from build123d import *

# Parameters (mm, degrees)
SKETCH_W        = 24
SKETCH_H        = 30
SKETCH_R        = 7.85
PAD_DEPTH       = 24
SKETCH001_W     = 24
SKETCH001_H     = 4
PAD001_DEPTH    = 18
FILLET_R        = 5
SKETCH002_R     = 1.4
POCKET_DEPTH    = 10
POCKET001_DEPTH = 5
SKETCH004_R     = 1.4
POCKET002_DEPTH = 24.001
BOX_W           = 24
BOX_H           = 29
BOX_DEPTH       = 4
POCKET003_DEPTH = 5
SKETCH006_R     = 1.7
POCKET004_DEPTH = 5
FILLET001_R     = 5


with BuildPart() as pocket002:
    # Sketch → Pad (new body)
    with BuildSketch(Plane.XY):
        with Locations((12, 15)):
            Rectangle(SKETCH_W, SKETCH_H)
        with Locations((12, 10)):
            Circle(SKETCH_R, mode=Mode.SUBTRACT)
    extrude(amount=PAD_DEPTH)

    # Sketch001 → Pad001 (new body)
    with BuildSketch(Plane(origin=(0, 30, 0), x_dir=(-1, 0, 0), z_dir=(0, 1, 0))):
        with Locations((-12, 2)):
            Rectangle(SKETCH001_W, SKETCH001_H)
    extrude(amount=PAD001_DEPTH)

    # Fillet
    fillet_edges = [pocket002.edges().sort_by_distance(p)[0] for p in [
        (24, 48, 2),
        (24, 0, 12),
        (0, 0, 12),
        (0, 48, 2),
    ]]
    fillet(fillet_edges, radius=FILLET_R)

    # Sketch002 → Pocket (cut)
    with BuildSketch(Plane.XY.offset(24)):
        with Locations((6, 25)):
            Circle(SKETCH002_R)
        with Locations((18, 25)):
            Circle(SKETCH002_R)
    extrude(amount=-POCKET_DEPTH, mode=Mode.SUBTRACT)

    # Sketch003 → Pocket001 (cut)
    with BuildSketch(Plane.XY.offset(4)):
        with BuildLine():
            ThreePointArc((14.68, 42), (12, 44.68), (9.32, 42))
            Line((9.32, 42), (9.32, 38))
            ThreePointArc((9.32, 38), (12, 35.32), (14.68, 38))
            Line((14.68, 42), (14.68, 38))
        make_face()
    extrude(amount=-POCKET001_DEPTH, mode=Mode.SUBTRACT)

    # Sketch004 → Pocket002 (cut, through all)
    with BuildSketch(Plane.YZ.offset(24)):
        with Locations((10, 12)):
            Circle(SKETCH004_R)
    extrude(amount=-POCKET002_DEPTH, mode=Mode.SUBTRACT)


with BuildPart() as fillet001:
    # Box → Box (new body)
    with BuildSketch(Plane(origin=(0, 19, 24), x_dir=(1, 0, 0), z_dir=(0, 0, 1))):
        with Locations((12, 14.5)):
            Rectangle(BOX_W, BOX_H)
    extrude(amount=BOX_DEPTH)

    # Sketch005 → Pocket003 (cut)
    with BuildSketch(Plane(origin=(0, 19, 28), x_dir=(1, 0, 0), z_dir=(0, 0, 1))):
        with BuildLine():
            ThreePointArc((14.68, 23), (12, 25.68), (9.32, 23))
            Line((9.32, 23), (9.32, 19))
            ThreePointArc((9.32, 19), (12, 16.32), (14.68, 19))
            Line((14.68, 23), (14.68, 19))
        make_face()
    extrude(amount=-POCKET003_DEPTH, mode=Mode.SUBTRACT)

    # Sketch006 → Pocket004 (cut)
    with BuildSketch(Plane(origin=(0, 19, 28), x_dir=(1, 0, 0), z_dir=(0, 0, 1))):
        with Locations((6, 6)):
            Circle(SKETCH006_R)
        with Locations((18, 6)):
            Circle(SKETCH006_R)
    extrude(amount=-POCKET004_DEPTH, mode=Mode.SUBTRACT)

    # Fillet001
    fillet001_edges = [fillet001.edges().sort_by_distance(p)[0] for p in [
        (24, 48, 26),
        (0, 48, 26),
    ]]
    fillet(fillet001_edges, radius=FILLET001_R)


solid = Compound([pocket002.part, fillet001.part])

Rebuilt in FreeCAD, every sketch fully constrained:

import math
import FreeCAD as App
import Part
import Sketcher
from FreeCAD import Vector
Q = App.Units.Quantity


def edges_at(feature, points):
    """Names of the edges that pass closest to the given points."""
    edges = feature.Shape.Edges
    near = lambda p: min(range(len(edges)), key=lambda i: edges[i].distToShape(Part.Vertex(*p))[0])
    return sorted({f"Edge{near(p) + 1}" for p in points})

doc = App.newDocument("Part")
body = doc.addObject("PartDesign::Body", "Body")

sketch1 = body.newObject("Sketcher::SketchObject", "Sketch")
sketch1.AttachmentSupport = (doc.getObject("XY_Plane"), [""])
sketch1.MapMode = "FlatFace"
sketch1.addGeometry(Part.LineSegment(Vector(0, 30, 0), Vector(0, 0, 0)), False)
sketch1.addGeometry(Part.LineSegment(Vector(0, 0, 0), Vector(24, 0, 0)), False)
sketch1.addGeometry(Part.LineSegment(Vector(24, 0, 0), Vector(24, 30, 0)), False)
sketch1.addGeometry(Part.LineSegment(Vector(24, 30, 0), Vector(0, 30, 0)), False)
sketch1.addGeometry(Part.Circle(Vector(12, 10, 0), Vector(0, 0, 1), 7.85), False)
sketch1.addConstraint(Sketcher.Constraint("Coincident", 0, 2, 1, 1))
sketch1.addConstraint(Sketcher.Constraint("Coincident", 1, 2, 2, 1))
sketch1.addConstraint(Sketcher.Constraint("Coincident", 2, 2, 3, 1))
sketch1.addConstraint(Sketcher.Constraint("Coincident", 3, 2, 0, 1))
sketch1.addConstraint(Sketcher.Constraint("Vertical", 0))
sketch1.addConstraint(Sketcher.Constraint("Horizontal", 1))
sketch1.addConstraint(Sketcher.Constraint("Vertical", 2))
sketch1.addConstraint(Sketcher.Constraint("Horizontal", 3))
sketch1.addConstraint(Sketcher.Constraint("Coincident", 0, 2, -1, 1))
sketch1.addConstraint(Sketcher.Constraint("Diameter", 4, Q("15.7 mm")))
sketch1.addConstraint(Sketcher.Constraint("DistanceX", 1, 1, 1, 2, Q("24 mm")))
sketch1.addConstraint(Sketcher.Constraint("DistanceY", 0, 2, 0, 1, Q("30 mm")))
sketch1.addConstraint(Sketcher.Constraint("DistanceX", -1, 1, 4, 3, Q("12 mm")))
sketch1.addConstraint(Sketcher.Constraint("DistanceY", -1, 1, 4, 3, Q("10 mm")))
pad1 = body.newObject("PartDesign::Pad", "Pad")
pad1.Profile = sketch1
pad1.Length = 24

sketch2 = body.newObject("Sketcher::SketchObject", "Sketch001")
sketch2.AttachmentSupport = (doc.getObject("XZ_Plane"), [""])
sketch2.MapMode = "FlatFace"
sketch2.AttachmentOffset = App.Placement(Vector(0, 0, -30), App.Rotation())
sketch2.addGeometry(Part.LineSegment(Vector(24, 4, 0), Vector(24, 0, 0)), False)
sketch2.addGeometry(Part.LineSegment(Vector(24, 0, 0), Vector(0, 0, 0)), False)
sketch2.addGeometry(Part.LineSegment(Vector(0, 0, 0), Vector(0, 4, 0)), False)
sketch2.addGeometry(Part.LineSegment(Vector(0, 4, 0), Vector(24, 4, 0)), False)
sketch2.addConstraint(Sketcher.Constraint("Coincident", 0, 2, 1, 1))
sketch2.addConstraint(Sketcher.Constraint("Coincident", 1, 2, 2, 1))
sketch2.addConstraint(Sketcher.Constraint("Coincident", 2, 2, 3, 1))
sketch2.addConstraint(Sketcher.Constraint("Coincident", 3, 2, 0, 1))
sketch2.addConstraint(Sketcher.Constraint("Vertical", 0))
sketch2.addConstraint(Sketcher.Constraint("Horizontal", 1))
sketch2.addConstraint(Sketcher.Constraint("Vertical", 2))
sketch2.addConstraint(Sketcher.Constraint("Horizontal", 3))
sketch2.addConstraint(Sketcher.Constraint("Coincident", 1, 2, -1, 1))
sketch2.addConstraint(Sketcher.Constraint("DistanceX", 1, 2, 1, 1, Q("24 mm")))
sketch2.addConstraint(Sketcher.Constraint("DistanceY", 0, 2, 0, 1, Q("4 mm")))
pad2 = body.newObject("PartDesign::Pad", "Pad001")
pad2.Profile = sketch2
pad2.Length = 18
pad2.Reversed = True
doc.recompute()

fillet = body.newObject("PartDesign::Fillet", "Fillet")
fillet.Base = (pad2, edges_at(pad2, [
    (24, 48, 2),
    (24, 0, 12),
    (0, 0, 12),
    (0, 48, 2),
]))
fillet.Radius = 5

sketch3 = body.newObject("Sketcher::SketchObject", "Sketch002")
sketch3.AttachmentSupport = (doc.getObject("XY_Plane"), [""])
sketch3.MapMode = "FlatFace"
sketch3.AttachmentOffset = App.Placement(Vector(0, 0, 24), App.Rotation())
sketch3.addGeometry(Part.Circle(Vector(6, 25, 0), Vector(0, 0, 1), 1.4), False)
sketch3.addGeometry(Part.Circle(Vector(18, 25, 0), Vector(0, 0, 1), 1.4), False)
sketch3.addConstraint(Sketcher.Constraint("Equal", 0, 1))
sketch3.addConstraint(Sketcher.Constraint("Horizontal", 0, 3, 1, 3))
sketch3.addConstraint(Sketcher.Constraint("Diameter", 0, Q("2.8 mm")))
sketch3.addConstraint(Sketcher.Constraint("DistanceX", -1, 1, 0, 3, Q("6 mm")))
sketch3.addConstraint(Sketcher.Constraint("DistanceY", -1, 1, 0, 3, Q("25 mm")))
sketch3.addConstraint(Sketcher.Constraint("DistanceX", -1, 1, 1, 3, Q("18 mm")))
pocket1 = body.newObject("PartDesign::Pocket", "Pocket")
pocket1.Profile = sketch3
pocket1.Length = 10

sketch4 = body.newObject("Sketcher::SketchObject", "Sketch003")
sketch4.AttachmentSupport = (doc.getObject("XY_Plane"), [""])
sketch4.MapMode = "FlatFace"
sketch4.AttachmentOffset = App.Placement(Vector(0, 0, 4), App.Rotation())
sketch4.addGeometry(Part.ArcOfCircle(Part.Circle(Vector(12, 42, 0), Vector(0, 0, 1), 2.68), math.radians(0), math.radians(180)), False)
sketch4.addGeometry(Part.LineSegment(Vector(9.32, 42, 0), Vector(9.32, 38, 0)), False)
sketch4.addGeometry(Part.ArcOfCircle(Part.Circle(Vector(12, 38, 0), Vector(0, 0, 1), 2.68), math.radians(180), math.radians(360)), False)
sketch4.addGeometry(Part.LineSegment(Vector(14.68, 38, 0), Vector(14.68, 42, 0)), False)
sketch4.addConstraint(Sketcher.Constraint("Tangent", 0, 2, 1, 1))
sketch4.addConstraint(Sketcher.Constraint("Tangent", 1, 2, 2, 1))
sketch4.addConstraint(Sketcher.Constraint("Tangent", 2, 2, 3, 1))
sketch4.addConstraint(Sketcher.Constraint("Tangent", 3, 2, 0, 1))
sketch4.addConstraint(Sketcher.Constraint("Vertical", 1))
sketch4.addConstraint(Sketcher.Constraint("Vertical", 3))
sketch4.addConstraint(Sketcher.Constraint("DistanceY", 1, 2, 1, 1, Q("4 mm")))
sketch4.addConstraint(Sketcher.Constraint("Radius", 0, Q("2.68 mm")))
sketch4.addConstraint(Sketcher.Constraint("DistanceX", -1, 1, 0, 3, Q("12 mm")))
sketch4.addConstraint(Sketcher.Constraint("DistanceY", -1, 1, 0, 3, Q("42 mm")))
pocket2 = body.newObject("PartDesign::Pocket", "Pocket001")
pocket2.Profile = sketch4
pocket2.Length = 5

sketch5 = body.newObject("Sketcher::SketchObject", "Sketch004")
sketch5.AttachmentSupport = (doc.getObject("YZ_Plane"), [""])
sketch5.MapMode = "FlatFace"
sketch5.AttachmentOffset = App.Placement(Vector(0, 0, 24), App.Rotation())
sketch5.addGeometry(Part.Circle(Vector(10, 12, 0), Vector(0, 0, 1), 1.4), False)
sketch5.addConstraint(Sketcher.Constraint("Diameter", 0, Q("2.8 mm")))
sketch5.addConstraint(Sketcher.Constraint("DistanceX", -1, 1, 0, 3, Q("10 mm")))
sketch5.addConstraint(Sketcher.Constraint("DistanceY", -1, 1, 0, 3, Q("12 mm")))
pocket3 = body.newObject("PartDesign::Pocket", "Pocket002")
pocket3.Profile = sketch5
pocket3.Type = "ThroughAll"
body2 = doc.addObject("PartDesign::Body", "Body001")

sketch6 = body2.newObject("Sketcher::SketchObject", "Sketch005")
sketch6.AttachmentSupport = (doc.getObject("XY_Plane001"), [""])
sketch6.MapMode = "FlatFace"
sketch6.AttachmentOffset = App.Placement(Vector(0, 0, 24), App.Rotation())
sketch6.addGeometry(Part.LineSegment(Vector(0, 48, 0), Vector(0, 19, 0)), False)
sketch6.addGeometry(Part.LineSegment(Vector(0, 19, 0), Vector(24, 19, 0)), False)
sketch6.addGeometry(Part.LineSegment(Vector(24, 19, 0), Vector(24, 48, 0)), False)
sketch6.addGeometry(Part.LineSegment(Vector(24, 48, 0), Vector(0, 48, 0)), False)
sketch6.addConstraint(Sketcher.Constraint("Coincident", 0, 2, 1, 1))
sketch6.addConstraint(Sketcher.Constraint("Coincident", 1, 2, 2, 1))
sketch6.addConstraint(Sketcher.Constraint("Coincident", 2, 2, 3, 1))
sketch6.addConstraint(Sketcher.Constraint("Coincident", 3, 2, 0, 1))
sketch6.addConstraint(Sketcher.Constraint("Vertical", 0))
sketch6.addConstraint(Sketcher.Constraint("Horizontal", 1))
sketch6.addConstraint(Sketcher.Constraint("Vertical", 2))
sketch6.addConstraint(Sketcher.Constraint("Horizontal", 3))
sketch6.addConstraint(Sketcher.Constraint("PointOnObject", 0, 2, -2))
sketch6.addConstraint(Sketcher.Constraint("DistanceX", 1, 1, 1, 2, Q("24 mm")))
sketch6.addConstraint(Sketcher.Constraint("DistanceY", 0, 2, 0, 1, Q("29 mm")))
sketch6.addConstraint(Sketcher.Constraint("DistanceY", -1, 1, 0, 2, Q("19 mm")))
pad3 = body2.newObject("PartDesign::Pad", "Pad002")
pad3.Profile = sketch6
pad3.Length = 4

sketch7 = body2.newObject("Sketcher::SketchObject", "Sketch006")
sketch7.AttachmentSupport = (doc.getObject("XY_Plane001"), [""])
sketch7.MapMode = "FlatFace"
sketch7.AttachmentOffset = App.Placement(Vector(0, 0, 28), App.Rotation())
sketch7.addGeometry(Part.ArcOfCircle(Part.Circle(Vector(12, 42, 0), Vector(0, 0, 1), 2.68), math.radians(0), math.radians(180)), False)
sketch7.addGeometry(Part.LineSegment(Vector(9.32, 42, 0), Vector(9.32, 38, 0)), False)
sketch7.addGeometry(Part.ArcOfCircle(Part.Circle(Vector(12, 38, 0), Vector(0, 0, 1), 2.68), math.radians(180), math.radians(360)), False)
sketch7.addGeometry(Part.LineSegment(Vector(14.68, 38, 0), Vector(14.68, 42, 0)), False)
sketch7.addConstraint(Sketcher.Constraint("Tangent", 0, 2, 1, 1))
sketch7.addConstraint(Sketcher.Constraint("Tangent", 1, 2, 2, 1))
sketch7.addConstraint(Sketcher.Constraint("Tangent", 2, 2, 3, 1))
sketch7.addConstraint(Sketcher.Constraint("Tangent", 3, 2, 0, 1))
sketch7.addConstraint(Sketcher.Constraint("Vertical", 1))
sketch7.addConstraint(Sketcher.Constraint("Vertical", 3))
sketch7.addConstraint(Sketcher.Constraint("DistanceY", 1, 2, 1, 1, Q("4 mm")))
sketch7.addConstraint(Sketcher.Constraint("Radius", 0, Q("2.68 mm")))
sketch7.addConstraint(Sketcher.Constraint("DistanceX", -1, 1, 0, 3, Q("12 mm")))
sketch7.addConstraint(Sketcher.Constraint("DistanceY", -1, 1, 0, 3, Q("42 mm")))
pocket4 = body2.newObject("PartDesign::Pocket", "Pocket003")
pocket4.Profile = sketch7
pocket4.Length = 5

sketch8 = body2.newObject("Sketcher::SketchObject", "Sketch007")
sketch8.AttachmentSupport = (doc.getObject("XY_Plane001"), [""])
sketch8.MapMode = "FlatFace"
sketch8.AttachmentOffset = App.Placement(Vector(0, 0, 28), App.Rotation())
sketch8.addGeometry(Part.Circle(Vector(6, 25, 0), Vector(0, 0, 1), 1.7), False)
sketch8.addGeometry(Part.Circle(Vector(18, 25, 0), Vector(0, 0, 1), 1.7), False)
sketch8.addConstraint(Sketcher.Constraint("Equal", 0, 1))
sketch8.addConstraint(Sketcher.Constraint("Horizontal", 0, 3, 1, 3))
sketch8.addConstraint(Sketcher.Constraint("Diameter", 0, Q("3.4 mm")))
sketch8.addConstraint(Sketcher.Constraint("DistanceX", -1, 1, 0, 3, Q("6 mm")))
sketch8.addConstraint(Sketcher.Constraint("DistanceY", -1, 1, 0, 3, Q("25 mm")))
sketch8.addConstraint(Sketcher.Constraint("DistanceX", -1, 1, 1, 3, Q("18 mm")))
pocket5 = body2.newObject("PartDesign::Pocket", "Pocket004")
pocket5.Profile = sketch8
pocket5.Length = 5
doc.recompute()

fillet2 = body2.newObject("PartDesign::Fillet", "Fillet001")
fillet2.Base = (pocket5, edges_at(pocket5, [(24, 48, 26), (0, 48, 26)]))
fillet2.Radius = 5

doc.recompute()
